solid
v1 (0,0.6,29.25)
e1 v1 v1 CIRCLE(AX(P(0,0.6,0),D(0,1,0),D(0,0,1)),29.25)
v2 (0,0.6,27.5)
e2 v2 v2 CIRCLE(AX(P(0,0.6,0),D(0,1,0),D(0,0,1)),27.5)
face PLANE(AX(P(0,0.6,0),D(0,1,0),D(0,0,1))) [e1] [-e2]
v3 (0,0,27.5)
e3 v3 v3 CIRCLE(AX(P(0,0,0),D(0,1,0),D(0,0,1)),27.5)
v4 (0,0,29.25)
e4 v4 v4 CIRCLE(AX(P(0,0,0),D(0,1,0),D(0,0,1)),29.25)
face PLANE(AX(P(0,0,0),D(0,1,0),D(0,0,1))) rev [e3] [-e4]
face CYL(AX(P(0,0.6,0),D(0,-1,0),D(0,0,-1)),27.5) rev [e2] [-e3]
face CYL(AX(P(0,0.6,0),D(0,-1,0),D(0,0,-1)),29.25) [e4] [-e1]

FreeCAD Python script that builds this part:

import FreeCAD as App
import Part
import Sketcher

doc = App.newDocument("Part")
body = doc.addObject("PartDesign::Body", "Body")

sketch1 = body.newObject("Sketcher::SketchObject", "Sketch")
sketch1.AttachmentSupport = (doc.getObject("XZ_Plane"), [""])
sketch1.MapMode = "FlatFace"
sketch1.addGeometry([
    Part.Circle(App.Vector(0, 0, 0), App.Vector(0, 0, 1), 29),
    Part.Circle(App.Vector(0, 0, 0), App.Vector(0, 0, 1), 28),
], False)
sketch1.addConstraint([
    Sketcher.Constraint("Coincident", 0, 3, -1, 1),
    Sketcher.Constraint("Coincident", 1, 3, -1, 1),
    Sketcher.Constraint("Diameter", 1, 55.0),
    Sketcher.Constraint("Diameter", 0, 58.5),
])
pad1 = body.newObject("PartDesign::Pad", "Pad")
pad1.Profile = sketch1
pad1.Length = 0.6
pad1.Reversed = True

doc.recompute()
